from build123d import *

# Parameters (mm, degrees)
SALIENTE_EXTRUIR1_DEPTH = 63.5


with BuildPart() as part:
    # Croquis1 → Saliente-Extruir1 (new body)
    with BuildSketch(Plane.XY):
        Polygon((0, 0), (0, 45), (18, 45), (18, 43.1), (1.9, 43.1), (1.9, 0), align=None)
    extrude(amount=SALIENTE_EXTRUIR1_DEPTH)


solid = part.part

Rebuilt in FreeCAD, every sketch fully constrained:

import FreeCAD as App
import Part
import Sketcher

V = App.Vector


def add_polygon(sketch, points):
    """Adds a closed chain of lines whose ends are joined by coincident constraints."""
    first, n = sketch.GeometryCount, len(points)
    for a, b in zip(points, points[1:] + points[:1]):
        sketch.addGeometry(Part.LineSegment(App.Vector(*a, 0), App.Vector(*b, 0)), False)
    for i in range(n):
        sketch.addConstraint(Sketcher.Constraint("Coincident", first + i, 2, first + (i + 1) % n, 1))

doc = App.newDocument("Part")
body = doc.addObject("PartDesign::Body", "Body")

# Sketch on XY plane
sketch1 = doc.addObject("Sketcher::SketchObject", "Sketch")
body.addObject(sketch1)
sketch1.AttachmentSupport = (doc.XY_Plane, [""])
sketch1.MapMode = "FlatFace"
add_polygon(sketch1, [(0, 45), (0, 0), (1.9, 0), (1.9, 43.1), (18, 43.1), (18, 45)])  # lines 0-5
sketch1.addConstraint(Sketcher.Constraint("Vertical", 0))
sketch1.addConstraint(Sketcher.Constraint("Horizontal", 1))
sketch1.addConstraint(Sketcher.Constraint("Vertical", 2))
sketch1.addConstraint(Sketcher.Constraint("Horizontal", 3))
sketch1.addConstraint(Sketcher.Constraint("Vertical", 4))
sketch1.addConstraint(Sketcher.Constraint("Horizontal", 5))
sketch1.addConstraint(Sketcher.Constraint("Coincident", 0, 2, -1, 1))
sketch1.addConstraint(Sketcher.Constraint("Equal", 1, 4))
sketch1.addConstraint(Sketcher.Constraint("DistanceX", 5, 2, 5, 1, 18.0))
sketch1.addConstraint(Sketcher.Constraint("DistanceY", 0, 2, 0, 1, 45.0))
sketch1.addConstraint(Sketcher.Constraint("DistanceX", 1, 1, 1, 2, 1.9))
pad1 = doc.addObject("PartDesign::Pad", "Pad")
body.addObject(pad1)
pad1.Profile = sketch1
pad1.Length = 63.5

doc.recompute()
